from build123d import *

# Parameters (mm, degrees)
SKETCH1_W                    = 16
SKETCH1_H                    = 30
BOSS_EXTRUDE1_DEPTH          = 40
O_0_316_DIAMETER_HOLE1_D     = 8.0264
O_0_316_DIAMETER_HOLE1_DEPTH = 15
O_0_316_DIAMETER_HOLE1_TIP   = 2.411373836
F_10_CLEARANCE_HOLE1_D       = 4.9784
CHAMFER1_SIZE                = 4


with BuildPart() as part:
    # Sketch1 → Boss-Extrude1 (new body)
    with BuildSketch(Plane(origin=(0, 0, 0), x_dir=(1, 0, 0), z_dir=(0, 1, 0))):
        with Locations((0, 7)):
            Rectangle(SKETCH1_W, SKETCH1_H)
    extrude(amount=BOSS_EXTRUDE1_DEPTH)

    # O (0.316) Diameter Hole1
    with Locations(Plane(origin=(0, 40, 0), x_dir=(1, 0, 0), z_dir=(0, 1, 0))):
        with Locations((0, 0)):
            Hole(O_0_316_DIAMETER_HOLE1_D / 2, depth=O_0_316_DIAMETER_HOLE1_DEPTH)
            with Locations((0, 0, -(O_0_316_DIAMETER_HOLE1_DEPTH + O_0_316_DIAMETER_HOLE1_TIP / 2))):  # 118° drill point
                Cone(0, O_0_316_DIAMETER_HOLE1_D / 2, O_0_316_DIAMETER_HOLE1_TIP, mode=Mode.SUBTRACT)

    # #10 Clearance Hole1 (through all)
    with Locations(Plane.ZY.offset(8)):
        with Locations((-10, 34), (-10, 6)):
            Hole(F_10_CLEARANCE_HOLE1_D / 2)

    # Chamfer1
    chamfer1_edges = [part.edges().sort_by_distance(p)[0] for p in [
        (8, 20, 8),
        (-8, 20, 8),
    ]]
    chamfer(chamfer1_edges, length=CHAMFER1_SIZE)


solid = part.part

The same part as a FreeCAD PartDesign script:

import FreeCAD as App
import Part
import Sketcher


def edges_at(feature, points):
    """Names of the edges that pass closest to the given points."""
    edges = feature.Shape.Edges
    near = lambda p: min(range(len(edges)), key=lambda i: edges[i].distToShape(Part.Vertex(*p))[0])
    return sorted({f"Edge{near(p) + 1}" for p in points})


def add_polygon(sketch, points):
    """Adds a closed chain of lines whose ends are joined by coincident constraints."""
    first, n = sketch.GeometryCount, len(points)
    for a, b in zip(points, points[1:] + points[:1]):
        sketch.addGeometry(Part.LineSegment(App.Vector(*a, 0), App.Vector(*b, 0)), False)
    for i in range(n):
        sketch.addConstraint(Sketcher.Constraint("Coincident", first + i, 2, first + (i + 1) % n, 1))

doc = App.newDocument("Part")
body = doc.addObject("PartDesign::Body", "Body")

sketch1 = body.newObject("Sketcher::SketchObject", "Sketch")
sketch1.AttachmentSupport = (doc.getObject("XZ_Plane"), [""])
sketch1.MapMode = "FlatFace"
add_polygon(sketch1, [(-8, -22), (-8, 8), (8, 8), (8, -22)])
sketch1.addConstraint(Sketcher.Constraint("Vertical", 0))
sketch1.addConstraint(Sketcher.Constraint("Horizontal", 1))
sketch1.addConstraint(Sketcher.Constraint("Vertical", 2))
sketch1.addConstraint(Sketcher.Constraint("Horizontal", 3))
sketch1.addConstraint(Sketcher.Constraint("DistanceX", 1, 1, 1, 2, 16.0))
sketch1.addConstraint(Sketcher.Constraint("DistanceY", 0, 1, 0, 2, 30.0))
sketch1.addConstraint(Sketcher.Constraint("DistanceX", 0, 2, -1, 1, 8.0))
sketch1.addConstraint(Sketcher.Constraint("DistanceY", -1, 1, 0, 2, 8.0))
pad1 = body.newObject("PartDesign::Pad", "Pad")
pad1.Profile = sketch1
pad1.Length = 40
pad1.Reversed = True

sketch2 = body.newObject("Sketcher::SketchObject", "Sketch001")
sketch2.AttachmentSupport = (doc.getObject("XZ_Plane"), [""])
sketch2.MapMode = "FlatFace"
sketch2.AttachmentOffset = App.Placement(App.Vector(0, 0, -40), App.Rotation())
sketch2.addGeometry(Part.Circle(App.Vector(0, 0, 0), App.Vector(0, 0, 1), 4), False)
sketch2.addConstraint(Sketcher.Constraint("Coincident", 0, 3, -1, 1))
sketch2.addConstraint(Sketcher.Constraint("Diameter", 0, 8.0264))
doc.recompute()
hole = body.newObject("PartDesign::Hole", "Hole")
hole.Profile = sketch2
hole.ThreadType = "None"
hole.Diameter = 8.0264
hole.DepthType = "Dimension"
hole.Depth = 15
hole.DrillPoint = "Angled"
hole.DrillPointAngle = 118
hole.Reversed = True

sketch3 = body.newObject("Sketcher::SketchObject", "Sketch002")
sketch3.AttachmentSupport = (doc.getObject("YZ_Plane"), [""])
sketch3.MapMode = "FlatFace"
sketch3.AttachmentOffset = App.Placement(App.Vector(0, 0, -8), App.Rotation())
sketch3.addGeometry(Part.Circle(App.Vector(34, -10, 0), App.Vector(0, 0, 1), 2.5), False)
sketch3.addGeometry(Part.Circle(App.Vector(6, -10, 0), App.Vector(0, 0, 1), 2.5), False)
sketch3.addConstraint(Sketcher.Constraint("Equal", 0, 1))
sketch3.addConstraint(Sketcher.Constraint("Horizontal", 0, 3, 1, 3))
sketch3.addConstraint(Sketcher.Constraint("DistanceX", -1, 1, 0, 3, 34.0))
sketch3.addConstraint(Sketcher.Constraint("DistanceY", 0, 3, -1, 1, 10.0))
sketch3.addConstraint(Sketcher.Constraint("DistanceX", -1, 1, 1, 3, 6.0))
sketch3.addConstraint(Sketcher.Constraint("Diameter", 0, 4.9784))
doc.recompute()
hole2 = body.newObject("PartDesign::Hole", "Hole001")
hole2.Profile = sketch3
hole2.ThreadType = "None"
hole2.Diameter = 4.9784
hole2.DepthType = "ThroughAll"
hole2.Reversed = True
doc.recompute()

chamfer = body.newObject("PartDesign::Chamfer", "Chamfer")
chamfer.Base = (hole2, edges_at(hole2, [(8, 20, 8), (-8, 20, 8)]))
chamfer.Size = 4

doc.recompute()
